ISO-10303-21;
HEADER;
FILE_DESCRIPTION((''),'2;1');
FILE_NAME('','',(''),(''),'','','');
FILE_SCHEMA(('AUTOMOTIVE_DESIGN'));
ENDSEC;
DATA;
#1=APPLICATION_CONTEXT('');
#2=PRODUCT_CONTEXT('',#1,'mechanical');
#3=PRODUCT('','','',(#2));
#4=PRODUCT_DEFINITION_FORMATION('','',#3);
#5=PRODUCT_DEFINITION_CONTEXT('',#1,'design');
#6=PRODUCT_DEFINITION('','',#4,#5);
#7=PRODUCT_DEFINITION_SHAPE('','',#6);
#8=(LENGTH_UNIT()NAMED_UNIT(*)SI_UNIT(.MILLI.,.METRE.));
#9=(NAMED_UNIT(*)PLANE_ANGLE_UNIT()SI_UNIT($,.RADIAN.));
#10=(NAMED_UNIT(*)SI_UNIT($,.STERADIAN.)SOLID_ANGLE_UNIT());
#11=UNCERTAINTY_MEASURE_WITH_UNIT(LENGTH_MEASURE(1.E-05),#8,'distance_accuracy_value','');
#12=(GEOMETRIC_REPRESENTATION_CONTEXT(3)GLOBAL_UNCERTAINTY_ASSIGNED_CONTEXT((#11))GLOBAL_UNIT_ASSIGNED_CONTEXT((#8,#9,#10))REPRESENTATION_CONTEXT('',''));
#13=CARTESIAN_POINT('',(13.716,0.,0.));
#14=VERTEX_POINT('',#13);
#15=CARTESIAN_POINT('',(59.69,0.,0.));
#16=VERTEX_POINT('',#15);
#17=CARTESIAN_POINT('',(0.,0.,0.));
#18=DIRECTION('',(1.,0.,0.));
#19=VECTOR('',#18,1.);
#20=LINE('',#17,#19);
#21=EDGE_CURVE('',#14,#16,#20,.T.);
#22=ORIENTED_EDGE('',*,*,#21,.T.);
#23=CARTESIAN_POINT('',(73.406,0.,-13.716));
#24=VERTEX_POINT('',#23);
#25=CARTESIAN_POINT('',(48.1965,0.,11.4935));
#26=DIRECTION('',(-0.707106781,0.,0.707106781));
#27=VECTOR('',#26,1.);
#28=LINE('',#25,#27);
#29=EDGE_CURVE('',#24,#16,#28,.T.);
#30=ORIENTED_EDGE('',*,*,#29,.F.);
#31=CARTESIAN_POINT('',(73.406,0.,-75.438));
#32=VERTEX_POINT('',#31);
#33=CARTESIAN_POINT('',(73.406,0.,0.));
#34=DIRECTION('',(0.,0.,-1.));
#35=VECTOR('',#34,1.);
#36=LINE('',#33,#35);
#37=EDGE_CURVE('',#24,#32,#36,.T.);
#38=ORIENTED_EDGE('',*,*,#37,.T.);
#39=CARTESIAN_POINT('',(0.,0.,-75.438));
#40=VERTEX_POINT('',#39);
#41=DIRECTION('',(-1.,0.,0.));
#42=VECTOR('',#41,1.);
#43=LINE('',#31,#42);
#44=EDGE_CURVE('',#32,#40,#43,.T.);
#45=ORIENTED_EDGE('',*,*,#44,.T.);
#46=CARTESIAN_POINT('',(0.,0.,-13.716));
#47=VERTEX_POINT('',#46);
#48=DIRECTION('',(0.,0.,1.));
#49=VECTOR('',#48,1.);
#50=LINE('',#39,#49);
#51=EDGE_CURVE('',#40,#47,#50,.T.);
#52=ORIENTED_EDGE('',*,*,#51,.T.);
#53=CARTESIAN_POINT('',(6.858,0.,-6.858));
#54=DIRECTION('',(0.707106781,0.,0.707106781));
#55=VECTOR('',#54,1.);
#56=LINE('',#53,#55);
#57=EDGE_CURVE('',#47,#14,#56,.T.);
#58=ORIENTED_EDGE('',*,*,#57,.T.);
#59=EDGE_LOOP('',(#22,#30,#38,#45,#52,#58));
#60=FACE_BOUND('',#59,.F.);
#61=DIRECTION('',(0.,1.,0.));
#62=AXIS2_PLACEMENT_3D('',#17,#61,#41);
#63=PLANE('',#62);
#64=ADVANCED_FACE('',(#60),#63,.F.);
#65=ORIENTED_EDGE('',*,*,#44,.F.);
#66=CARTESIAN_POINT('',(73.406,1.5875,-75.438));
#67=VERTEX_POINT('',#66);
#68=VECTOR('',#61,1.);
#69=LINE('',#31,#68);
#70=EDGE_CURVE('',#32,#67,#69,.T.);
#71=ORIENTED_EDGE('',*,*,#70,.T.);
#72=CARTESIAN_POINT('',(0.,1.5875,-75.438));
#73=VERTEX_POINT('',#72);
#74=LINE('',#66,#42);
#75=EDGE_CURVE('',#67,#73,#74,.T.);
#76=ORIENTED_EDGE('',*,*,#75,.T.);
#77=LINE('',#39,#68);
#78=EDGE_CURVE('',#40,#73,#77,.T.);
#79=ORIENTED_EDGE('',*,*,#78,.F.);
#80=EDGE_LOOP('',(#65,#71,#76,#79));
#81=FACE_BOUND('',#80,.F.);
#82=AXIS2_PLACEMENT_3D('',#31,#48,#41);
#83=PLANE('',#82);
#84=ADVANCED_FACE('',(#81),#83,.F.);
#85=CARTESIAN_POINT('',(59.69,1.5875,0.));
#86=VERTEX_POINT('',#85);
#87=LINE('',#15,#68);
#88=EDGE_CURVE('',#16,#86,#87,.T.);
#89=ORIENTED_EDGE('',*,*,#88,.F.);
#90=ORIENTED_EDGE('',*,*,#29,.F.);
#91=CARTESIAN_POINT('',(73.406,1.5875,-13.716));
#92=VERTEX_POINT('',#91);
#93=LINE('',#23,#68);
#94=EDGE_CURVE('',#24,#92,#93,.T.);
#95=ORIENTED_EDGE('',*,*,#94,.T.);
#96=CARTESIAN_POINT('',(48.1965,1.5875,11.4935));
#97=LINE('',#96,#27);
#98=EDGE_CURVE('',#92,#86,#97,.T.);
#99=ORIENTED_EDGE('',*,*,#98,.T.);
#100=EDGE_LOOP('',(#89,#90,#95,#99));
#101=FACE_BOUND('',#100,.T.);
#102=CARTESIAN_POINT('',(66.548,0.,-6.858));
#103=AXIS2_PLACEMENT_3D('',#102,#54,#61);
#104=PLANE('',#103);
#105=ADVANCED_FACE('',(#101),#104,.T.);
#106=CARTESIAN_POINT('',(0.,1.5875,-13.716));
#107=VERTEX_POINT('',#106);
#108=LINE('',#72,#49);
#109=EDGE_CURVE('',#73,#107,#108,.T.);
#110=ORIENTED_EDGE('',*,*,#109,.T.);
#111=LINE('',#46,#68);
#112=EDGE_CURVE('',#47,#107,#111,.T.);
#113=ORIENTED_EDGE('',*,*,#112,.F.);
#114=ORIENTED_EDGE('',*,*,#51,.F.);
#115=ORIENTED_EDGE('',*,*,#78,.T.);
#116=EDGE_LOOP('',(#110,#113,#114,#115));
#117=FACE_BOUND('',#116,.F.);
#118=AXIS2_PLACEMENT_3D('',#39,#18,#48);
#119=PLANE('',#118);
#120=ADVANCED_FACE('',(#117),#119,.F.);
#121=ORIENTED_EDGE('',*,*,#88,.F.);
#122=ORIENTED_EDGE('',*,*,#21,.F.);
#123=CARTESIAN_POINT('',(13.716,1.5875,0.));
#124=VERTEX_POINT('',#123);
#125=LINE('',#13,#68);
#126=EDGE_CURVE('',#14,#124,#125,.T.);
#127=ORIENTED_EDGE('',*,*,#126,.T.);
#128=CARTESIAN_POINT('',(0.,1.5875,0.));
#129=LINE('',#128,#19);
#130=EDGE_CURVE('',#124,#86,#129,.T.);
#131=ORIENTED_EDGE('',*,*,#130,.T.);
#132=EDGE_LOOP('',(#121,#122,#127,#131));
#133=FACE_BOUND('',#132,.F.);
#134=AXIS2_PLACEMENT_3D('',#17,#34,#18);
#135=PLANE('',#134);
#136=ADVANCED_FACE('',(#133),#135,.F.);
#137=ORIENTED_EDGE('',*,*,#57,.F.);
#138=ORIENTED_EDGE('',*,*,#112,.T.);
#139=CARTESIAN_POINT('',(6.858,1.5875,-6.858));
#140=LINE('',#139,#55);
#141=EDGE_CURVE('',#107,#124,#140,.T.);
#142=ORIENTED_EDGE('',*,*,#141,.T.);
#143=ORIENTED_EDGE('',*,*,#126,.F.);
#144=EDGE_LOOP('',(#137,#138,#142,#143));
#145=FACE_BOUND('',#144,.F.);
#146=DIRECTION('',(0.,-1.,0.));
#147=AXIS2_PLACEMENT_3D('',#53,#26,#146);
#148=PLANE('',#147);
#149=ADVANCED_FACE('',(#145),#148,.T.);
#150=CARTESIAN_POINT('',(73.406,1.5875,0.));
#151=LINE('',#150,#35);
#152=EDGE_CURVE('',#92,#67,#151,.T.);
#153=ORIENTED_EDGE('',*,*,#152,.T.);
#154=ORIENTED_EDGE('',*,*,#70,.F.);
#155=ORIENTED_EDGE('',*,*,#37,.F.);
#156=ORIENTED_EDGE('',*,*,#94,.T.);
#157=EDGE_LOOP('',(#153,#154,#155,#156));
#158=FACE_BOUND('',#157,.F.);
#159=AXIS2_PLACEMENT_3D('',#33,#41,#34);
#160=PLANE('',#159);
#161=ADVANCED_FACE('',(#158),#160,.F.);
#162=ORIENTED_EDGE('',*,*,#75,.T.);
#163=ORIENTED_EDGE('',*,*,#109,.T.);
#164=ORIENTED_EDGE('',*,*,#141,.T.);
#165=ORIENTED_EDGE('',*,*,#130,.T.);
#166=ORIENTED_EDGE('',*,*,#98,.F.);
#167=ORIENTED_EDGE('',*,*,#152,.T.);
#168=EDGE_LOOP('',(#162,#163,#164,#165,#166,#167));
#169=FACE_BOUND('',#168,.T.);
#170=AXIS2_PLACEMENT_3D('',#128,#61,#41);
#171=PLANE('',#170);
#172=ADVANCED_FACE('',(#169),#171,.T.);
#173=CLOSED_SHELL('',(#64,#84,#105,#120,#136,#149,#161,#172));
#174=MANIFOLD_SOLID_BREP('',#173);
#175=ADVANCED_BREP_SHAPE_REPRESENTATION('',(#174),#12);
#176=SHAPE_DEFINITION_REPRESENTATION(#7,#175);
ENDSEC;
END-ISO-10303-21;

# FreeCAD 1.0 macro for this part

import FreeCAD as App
import Part
import Sketcher

V = App.Vector
Q = App.Units.Quantity


def edges_at(feature, points):
    """Names of the edges that pass closest to the given points."""
    edges = feature.Shape.Edges
    near = lambda p: min(range(len(edges)), key=lambda i: edges[i].distToShape(Part.Vertex(*p))[0])
    return sorted({f"Edge{near(p) + 1}" for p in points})

doc = App.newDocument("Part")
body = doc.addObject("PartDesign::Body", "Body")

sketch1 = body.newObject("Sketcher::SketchObject", "Sketch")
sketch1.AttachmentSupport = (doc.getObject("XZ_Plane"), [""])
sketch1.MapMode = "FlatFace"
sketch1.addGeometry(Part.LineSegment(V(0, -75, 0), V(0, 0, 0)), False)
sketch1.addGeometry(Part.LineSegment(V(0, 0, 0), V(73, 0, 0)), False)
sketch1.addGeometry(Part.LineSegment(V(73, 0, 0), V(73, -75, 0)), False)
sketch1.addGeometry(Part.LineSegment(V(73, -75, 0), V(0, -75, 0)), False)
sketch1.addConstraint(Sketcher.Constraint("Coincident", 0, 2, 1, 1))
sketch1.addConstraint(Sketcher.Constraint("Coincident", 1, 2, 2, 1))
sketch1.addConstraint(Sketcher.Constraint("Coincident", 2, 2, 3, 1))
sketch1.addConstraint(Sketcher.Constraint("Coincident", 3, 2, 0, 1))
sketch1.addConstraint(Sketcher.Constraint("Vertical", 0))
sketch1.addConstraint(Sketcher.Constraint("Horizontal", 1))
sketch1.addConstraint(Sketcher.Constraint("Vertical", 2))
sketch1.addConstraint(Sketcher.Constraint("Horizontal", 3))
sketch1.addConstraint(Sketcher.Constraint("Coincident", 0, 2, -1, 1))
sketch1.addConstraint(Sketcher.Constraint("DistanceX", 1, 1, 1, 2, Q("2.89 in")))
sketch1.addConstraint(Sketcher.Constraint("DistanceY", 0, 1, 0, 2, Q("2.97 in")))
pad1 = body.newObject("PartDesign::Pad", "Pad")
pad1.Profile = sketch1
pad1.Length = Q("0.0625 in")
pad1.Reversed = True
doc.recompute()

chamfer = body.newObject("PartDesign::Chamfer", "Chamfer")
chamfer.Base = (pad1, edges_at(pad1, [(0, 0.794, 0), (73.406, 0.794, 0)]))
chamfer.Size = Q("0.54 in")

doc.recompute()
